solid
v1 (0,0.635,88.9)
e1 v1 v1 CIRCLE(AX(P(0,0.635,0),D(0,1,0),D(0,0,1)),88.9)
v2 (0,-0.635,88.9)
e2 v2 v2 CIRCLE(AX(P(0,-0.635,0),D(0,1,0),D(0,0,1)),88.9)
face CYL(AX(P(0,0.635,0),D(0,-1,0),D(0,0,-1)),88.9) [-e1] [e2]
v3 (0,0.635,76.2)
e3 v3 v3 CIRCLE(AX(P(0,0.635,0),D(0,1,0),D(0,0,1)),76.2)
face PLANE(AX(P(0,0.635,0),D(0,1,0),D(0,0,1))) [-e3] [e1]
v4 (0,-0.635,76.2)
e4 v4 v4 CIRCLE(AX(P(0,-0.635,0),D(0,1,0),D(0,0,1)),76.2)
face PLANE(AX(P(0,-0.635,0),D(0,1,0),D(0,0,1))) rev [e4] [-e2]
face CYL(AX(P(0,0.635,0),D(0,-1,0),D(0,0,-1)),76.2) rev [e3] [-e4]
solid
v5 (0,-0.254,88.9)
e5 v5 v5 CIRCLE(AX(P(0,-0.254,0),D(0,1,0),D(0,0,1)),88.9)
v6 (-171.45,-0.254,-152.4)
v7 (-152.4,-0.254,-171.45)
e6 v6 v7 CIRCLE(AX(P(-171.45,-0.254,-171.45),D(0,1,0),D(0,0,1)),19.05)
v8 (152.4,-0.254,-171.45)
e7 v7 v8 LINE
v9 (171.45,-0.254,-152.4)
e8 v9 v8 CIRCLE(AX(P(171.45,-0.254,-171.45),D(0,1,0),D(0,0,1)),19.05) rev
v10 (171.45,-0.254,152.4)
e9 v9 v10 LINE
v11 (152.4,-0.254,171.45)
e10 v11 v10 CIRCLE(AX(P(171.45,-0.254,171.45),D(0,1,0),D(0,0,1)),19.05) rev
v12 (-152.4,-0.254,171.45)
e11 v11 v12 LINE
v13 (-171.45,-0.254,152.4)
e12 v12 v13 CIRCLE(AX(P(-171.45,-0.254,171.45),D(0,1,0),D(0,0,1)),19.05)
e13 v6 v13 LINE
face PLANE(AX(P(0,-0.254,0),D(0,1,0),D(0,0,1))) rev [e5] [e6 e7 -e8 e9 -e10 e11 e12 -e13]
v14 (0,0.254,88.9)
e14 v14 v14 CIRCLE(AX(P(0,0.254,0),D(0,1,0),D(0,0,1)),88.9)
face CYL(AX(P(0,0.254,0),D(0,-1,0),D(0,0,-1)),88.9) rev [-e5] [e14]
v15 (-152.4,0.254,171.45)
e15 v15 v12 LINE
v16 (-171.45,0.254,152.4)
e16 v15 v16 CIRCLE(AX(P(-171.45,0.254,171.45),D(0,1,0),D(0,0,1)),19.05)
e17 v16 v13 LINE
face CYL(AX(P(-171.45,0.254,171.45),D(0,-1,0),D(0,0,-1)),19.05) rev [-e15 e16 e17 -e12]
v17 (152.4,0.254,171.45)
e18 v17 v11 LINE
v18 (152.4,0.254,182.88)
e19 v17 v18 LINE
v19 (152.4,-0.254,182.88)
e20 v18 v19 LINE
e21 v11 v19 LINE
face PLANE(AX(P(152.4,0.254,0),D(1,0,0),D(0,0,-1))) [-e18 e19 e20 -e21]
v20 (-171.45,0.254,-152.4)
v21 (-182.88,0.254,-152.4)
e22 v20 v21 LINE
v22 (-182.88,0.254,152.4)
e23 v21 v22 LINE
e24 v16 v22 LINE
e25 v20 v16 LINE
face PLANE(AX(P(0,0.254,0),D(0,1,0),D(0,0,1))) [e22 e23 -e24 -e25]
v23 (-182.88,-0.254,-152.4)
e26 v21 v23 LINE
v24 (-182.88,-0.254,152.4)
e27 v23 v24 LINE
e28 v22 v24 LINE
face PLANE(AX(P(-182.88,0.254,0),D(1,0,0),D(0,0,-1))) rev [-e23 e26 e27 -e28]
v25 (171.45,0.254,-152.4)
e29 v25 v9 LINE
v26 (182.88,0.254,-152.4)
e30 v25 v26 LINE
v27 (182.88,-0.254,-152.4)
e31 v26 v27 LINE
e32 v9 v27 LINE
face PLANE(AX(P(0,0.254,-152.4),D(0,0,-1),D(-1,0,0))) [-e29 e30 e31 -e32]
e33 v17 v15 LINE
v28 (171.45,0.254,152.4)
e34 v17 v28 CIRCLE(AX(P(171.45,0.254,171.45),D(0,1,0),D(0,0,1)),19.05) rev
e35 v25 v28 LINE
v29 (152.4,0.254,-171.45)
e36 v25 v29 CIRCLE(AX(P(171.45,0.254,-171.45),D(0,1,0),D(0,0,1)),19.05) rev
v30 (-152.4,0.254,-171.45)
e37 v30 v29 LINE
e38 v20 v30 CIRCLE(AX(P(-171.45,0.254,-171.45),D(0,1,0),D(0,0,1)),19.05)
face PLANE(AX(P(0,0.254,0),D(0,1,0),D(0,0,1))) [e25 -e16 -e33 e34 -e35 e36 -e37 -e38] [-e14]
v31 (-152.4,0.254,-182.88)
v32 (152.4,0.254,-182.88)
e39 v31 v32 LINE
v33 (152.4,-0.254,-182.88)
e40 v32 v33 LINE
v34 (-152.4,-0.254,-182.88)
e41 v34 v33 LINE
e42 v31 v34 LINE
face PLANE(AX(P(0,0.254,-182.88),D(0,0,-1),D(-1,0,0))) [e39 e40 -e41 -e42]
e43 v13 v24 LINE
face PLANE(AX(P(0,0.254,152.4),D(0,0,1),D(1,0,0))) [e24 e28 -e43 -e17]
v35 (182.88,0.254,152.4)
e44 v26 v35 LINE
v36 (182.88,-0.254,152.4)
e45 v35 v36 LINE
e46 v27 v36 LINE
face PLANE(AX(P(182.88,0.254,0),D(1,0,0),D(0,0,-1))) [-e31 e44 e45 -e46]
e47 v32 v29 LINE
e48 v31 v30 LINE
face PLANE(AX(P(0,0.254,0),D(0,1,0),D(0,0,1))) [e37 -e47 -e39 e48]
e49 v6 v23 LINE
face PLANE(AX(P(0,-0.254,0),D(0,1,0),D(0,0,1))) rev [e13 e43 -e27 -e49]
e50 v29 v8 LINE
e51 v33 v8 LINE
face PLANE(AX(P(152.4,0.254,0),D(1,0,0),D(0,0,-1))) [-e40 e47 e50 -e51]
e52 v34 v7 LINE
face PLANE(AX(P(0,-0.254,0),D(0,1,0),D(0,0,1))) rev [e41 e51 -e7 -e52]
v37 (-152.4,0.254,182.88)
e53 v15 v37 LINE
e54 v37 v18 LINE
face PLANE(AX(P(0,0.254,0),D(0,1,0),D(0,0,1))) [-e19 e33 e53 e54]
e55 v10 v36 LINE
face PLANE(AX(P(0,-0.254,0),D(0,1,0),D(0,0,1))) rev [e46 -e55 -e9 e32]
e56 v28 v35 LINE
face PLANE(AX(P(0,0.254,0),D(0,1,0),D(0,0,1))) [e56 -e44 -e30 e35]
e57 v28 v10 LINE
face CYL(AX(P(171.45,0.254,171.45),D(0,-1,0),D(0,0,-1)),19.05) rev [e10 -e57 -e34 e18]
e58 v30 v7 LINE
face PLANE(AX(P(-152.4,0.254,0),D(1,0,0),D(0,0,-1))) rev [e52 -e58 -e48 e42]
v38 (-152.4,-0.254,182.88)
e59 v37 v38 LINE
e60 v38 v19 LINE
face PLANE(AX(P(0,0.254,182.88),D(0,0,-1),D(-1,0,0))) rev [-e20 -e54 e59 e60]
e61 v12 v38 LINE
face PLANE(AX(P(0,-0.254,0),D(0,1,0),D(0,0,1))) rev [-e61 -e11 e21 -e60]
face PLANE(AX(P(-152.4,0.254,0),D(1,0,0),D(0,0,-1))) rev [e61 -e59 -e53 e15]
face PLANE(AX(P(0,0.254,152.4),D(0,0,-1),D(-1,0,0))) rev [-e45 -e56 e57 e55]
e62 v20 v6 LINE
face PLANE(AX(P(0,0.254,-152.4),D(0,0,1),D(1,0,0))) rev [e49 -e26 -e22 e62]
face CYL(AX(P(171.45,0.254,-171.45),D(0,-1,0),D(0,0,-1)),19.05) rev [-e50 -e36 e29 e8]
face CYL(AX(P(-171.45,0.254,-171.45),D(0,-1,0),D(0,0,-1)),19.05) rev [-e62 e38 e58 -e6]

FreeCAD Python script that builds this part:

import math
import FreeCAD as App
import Part
import Sketcher
Q = App.Units.Quantity

doc = App.newDocument("Part")
body = doc.addObject("PartDesign::Body", "Body")

sketch1 = doc.addObject("Sketcher::SketchObject", "Sketch")
body.addObject(sketch1)
sketch1.AttachmentSupport = (doc.XZ_Plane, [""])
sketch1.MapMode = "FlatFace"
sketch1.addGeometry([
    Part.LineSegment(App.Vector(-152.4, 171.45, 0), App.Vector(-152.4, 182.88, 0)),
    Part.LineSegment(App.Vector(-152.4, 182.88, 0), App.Vector(152.4, 182.88, 0)),
    Part.LineSegment(App.Vector(152.4, 182.88, 0), App.Vector(152.4, 171.45, 0)),
    Part.ArcOfCircle(Part.Circle(App.Vector(171.45, 171.45, 0), App.Vector(0, 0, 1), 19.05), math.radians(180), math.radians(270)),
    Part.LineSegment(App.Vector(171.45, 152.4, 0), App.Vector(182.88, 152.4, 0)),
    Part.LineSegment(App.Vector(182.88, 152.4, 0), App.Vector(182.88, -152.4, 0)),
    Part.LineSegment(App.Vector(182.88, -152.4, 0), App.Vector(171.45, -152.4, 0)),
    Part.ArcOfCircle(Part.Circle(App.Vector(171.45, -171.45, 0), App.Vector(0, 0, 1), 19.05), math.radians(90), math.radians(180)),
    Part.LineSegment(App.Vector(152.4, -171.45, 0), App.Vector(152.4, -182.88, 0)),
    Part.LineSegment(App.Vector(152.4, -182.88, 0), App.Vector(-152.4, -182.88, 0)),
    Part.LineSegment(App.Vector(-152.4, -182.88, 0), App.Vector(-152.4, -171.45, 0)),
    Part.ArcOfCircle(Part.Circle(App.Vector(-171.45, -171.45, 0), App.Vector(0, 0, 1), 19.05), math.radians(0), math.radians(90)),
    Part.LineSegment(App.Vector(-171.45, -152.4, 0), App.Vector(-182.88, -152.4, 0)),
    Part.LineSegment(App.Vector(-182.88, -152.4, 0), App.Vector(-182.88, 152.4, 0)),
    Part.LineSegment(App.Vector(-182.88, 152.4, 0), App.Vector(-171.45, 152.4, 0)),
    Part.ArcOfCircle(Part.Circle(App.Vector(-171.45, 171.45, 0), App.Vector(0, 0, 1), 19.05), math.radians(-90), math.radians(0)),
    Part.Circle(App.Vector(0, 0, 0), App.Vector(0, 0, 1), 88.9),
], False)
sketch1.addConstraint([
    Sketcher.Constraint("Coincident", 0, 2, 1, 1),
    Sketcher.Constraint("Coincident", 1, 2, 2, 1),
    Sketcher.Constraint("Tangent", 2, 2, 3, 1),
    Sketcher.Constraint("Tangent", 3, 2, 4, 1),
    Sketcher.Constraint("Coincident", 4, 2, 5, 1),
    Sketcher.Constraint("Coincident", 5, 2, 6, 1),
    Sketcher.Constraint("Tangent", 6, 2, 7, 1),
    Sketcher.Constraint("Tangent", 7, 2, 8, 1),
    Sketcher.Constraint("Coincident", 8, 2, 9, 1),
    Sketcher.Constraint("Coincident", 9, 2, 10, 1),
    Sketcher.Constraint("Tangent", 10, 2, 11, 1),
    Sketcher.Constraint("Tangent", 11, 2, 12, 1),
    Sketcher.Constraint("Coincident", 12, 2, 13, 1),
    Sketcher.Constraint("Coincident", 13, 2, 14, 1),
    Sketcher.Constraint("Tangent", 14, 2, 15, 1),
    Sketcher.Constraint("Tangent", 15, 2, 0, 1),
    Sketcher.Constraint("Vertical", 0),
    Sketcher.Constraint("Horizontal", 1),
    Sketcher.Constraint("Vertical", 2),
    Sketcher.Constraint("Horizontal", 4),
    Sketcher.Constraint("Vertical", 5),
    Sketcher.Constraint("Horizontal", 6),
    Sketcher.Constraint("Vertical", 8),
    Sketcher.Constraint("Horizontal", 9),
    Sketcher.Constraint("Vertical", 10),
    Sketcher.Constraint("Horizontal", 12),
    Sketcher.Constraint("Vertical", 13),
    Sketcher.Constraint("Horizontal", 14),
    Sketcher.Constraint("Coincident", 16, 3, -1, 1),
    Sketcher.Constraint("Equal", 3, 7),
    Sketcher.Constraint("Equal", 7, 11),
    Sketcher.Constraint("Equal", 11, 15),
    Sketcher.Constraint("Symmetric", 3, 3, 11, 3, -1, 1),
    Sketcher.Constraint("Symmetric", 7, 3, 15, 3, -1, 1),
    Sketcher.Constraint("Symmetric", 7, 3, 11, 3, -2),
    Sketcher.Constraint("Equal", 6, 12),
    Sketcher.Constraint("Equal", 14, 0),
    Sketcher.Constraint("Equal", 9, 5),
    Sketcher.Constraint("Equal", 2, 8),
    Sketcher.Constraint("Diameter", 16, Q("7 in")),
    Sketcher.Constraint("DistanceX", 1, 1, 1, 2, Q("12 in")),
    Sketcher.Constraint("Radius", 3, Q("0.75 in")),
    Sketcher.Constraint("DistanceX", 4, 1, 4, 2, Q("0.45 in")),
])
pad1 = doc.addObject("PartDesign::Pad", "Pad")
body.addObject(pad1)
pad1.Profile = sketch1
pad1.Length = Q("0.02 in")
pad1.Midplane = True
body2 = doc.addObject("PartDesign::Body", "Body001")

sketch2 = doc.addObject("Sketcher::SketchObject", "Sketch001")
body2.addObject(sketch2)
sketch2.AttachmentSupport = (doc.getObject("XZ_Plane001"), [""])
sketch2.MapMode = "FlatFace"
sketch2.addGeometry([
    Part.Circle(App.Vector(0, 0, 0), App.Vector(0, 0, 1), 88.9),
    Part.Circle(App.Vector(0, 0, 0), App.Vector(0, 0, 1), 76.2),
], False)
sketch2.addConstraint([
    Sketcher.Constraint("Coincident", 0, 3, -1, 1),
    Sketcher.Constraint("Coincident", 1, 3, -1, 1),
    Sketcher.Constraint("Diameter", 0, Q("7 in")),
    Sketcher.Constraint("Diameter", 1, Q("6 in")),
])
pad2 = doc.addObject("PartDesign::Pad", "Pad001")
body2.addObject(pad2)
pad2.Profile = sketch2
pad2.Length = Q("0.05 in")
pad2.Midplane = True

doc.recompute()
